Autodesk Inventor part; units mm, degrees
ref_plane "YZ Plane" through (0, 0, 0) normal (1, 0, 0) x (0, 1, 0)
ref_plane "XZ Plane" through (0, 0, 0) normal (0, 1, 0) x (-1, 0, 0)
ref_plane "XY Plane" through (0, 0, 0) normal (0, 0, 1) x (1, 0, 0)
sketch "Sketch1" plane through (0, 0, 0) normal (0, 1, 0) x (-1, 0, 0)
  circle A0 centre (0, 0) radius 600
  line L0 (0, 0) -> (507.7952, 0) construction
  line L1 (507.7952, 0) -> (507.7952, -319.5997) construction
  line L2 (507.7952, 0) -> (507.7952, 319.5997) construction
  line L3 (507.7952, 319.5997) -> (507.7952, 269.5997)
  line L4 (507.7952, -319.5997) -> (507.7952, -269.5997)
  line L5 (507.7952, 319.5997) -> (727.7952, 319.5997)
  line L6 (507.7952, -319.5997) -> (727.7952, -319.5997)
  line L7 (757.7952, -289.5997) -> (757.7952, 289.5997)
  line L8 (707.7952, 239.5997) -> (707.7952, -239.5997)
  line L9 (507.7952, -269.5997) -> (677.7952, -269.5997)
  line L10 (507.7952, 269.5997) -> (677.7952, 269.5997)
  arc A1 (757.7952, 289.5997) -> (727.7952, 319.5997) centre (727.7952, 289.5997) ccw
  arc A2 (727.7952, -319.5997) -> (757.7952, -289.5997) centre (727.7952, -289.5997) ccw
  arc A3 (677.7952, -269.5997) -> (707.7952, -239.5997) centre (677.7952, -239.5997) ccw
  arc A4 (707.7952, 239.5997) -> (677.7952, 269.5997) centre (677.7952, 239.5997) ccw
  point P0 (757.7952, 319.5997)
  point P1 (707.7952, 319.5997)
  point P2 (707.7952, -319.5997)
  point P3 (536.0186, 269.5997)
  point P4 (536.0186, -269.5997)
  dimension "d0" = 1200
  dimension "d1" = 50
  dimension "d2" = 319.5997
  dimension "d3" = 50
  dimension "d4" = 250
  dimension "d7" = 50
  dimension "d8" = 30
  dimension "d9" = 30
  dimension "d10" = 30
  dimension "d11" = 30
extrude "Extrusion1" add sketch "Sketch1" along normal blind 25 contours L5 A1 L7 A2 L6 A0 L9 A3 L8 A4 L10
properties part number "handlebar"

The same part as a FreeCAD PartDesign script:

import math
import FreeCAD as App
import Part
import Sketcher
Q = App.Units.Quantity

doc = App.newDocument("Part")
body = doc.addObject("PartDesign::Body", "Body")

# Sketch on XZ plane
sketch1 = body.newObject("Sketcher::SketchObject", "Sketch")
sketch1.AttachmentSupport = (doc.getObject("XZ_Plane"), [""])
sketch1.MapMode = "FlatFace"
sketch1.addGeometry([
    Part.LineSegment(App.Vector(-727.7952, 319.5997, 0), App.Vector(-507.7952, 319.5997, 0)),  # 0
    Part.ArcOfCircle(Part.Circle(App.Vector(0, 0, 0), App.Vector(0, 0, 1), 600), math.radians(147.814222), math.radians(153.299113)),  # 1
    Part.LineSegment(App.Vector(-536.018658, 269.5997, 0), App.Vector(-677.7952, 269.5997, 0)),  # 2
    Part.ArcOfCircle(Part.Circle(App.Vector(-677.7952, 239.5997, 0), App.Vector(0, 0, 1), 30), math.radians(90), math.radians(180)),  # 3
    Part.LineSegment(App.Vector(-707.7952, 239.5997, 0), App.Vector(-707.7952, -239.5997, 0)),  # 4
    Part.ArcOfCircle(Part.Circle(App.Vector(-677.7952, -239.5997, 0), App.Vector(0, 0, 1), 30), math.radians(180), math.radians(270)),  # 5
    Part.LineSegment(App.Vector(-677.7952, -269.5997, 0), App.Vector(-536.018658, -269.5997, 0)),  # 6
    Part.ArcOfCircle(Part.Circle(App.Vector(0, 0, 0), App.Vector(0, 0, 1), 600), math.radians(-153.299113), math.radians(-147.814222)),  # 7
    Part.LineSegment(App.Vector(-507.7952, -319.5997, 0), App.Vector(-727.7952, -319.5997, 0)),  # 8
    Part.ArcOfCircle(Part.Circle(App.Vector(-727.7952, -289.5997, 0), App.Vector(0, 0, 1), 30), math.radians(180), math.radians(270)),  # 9
    Part.LineSegment(App.Vector(-757.7952, -289.5997, 0), App.Vector(-757.7952, 289.5997, 0)),  # 10
    Part.ArcOfCircle(Part.Circle(App.Vector(-727.7952, 289.5997, 0), App.Vector(0, 0, 1), 30), math.radians(90), math.radians(180)),  # 11
], False)
sketch1.addConstraint([
    Sketcher.Constraint("Coincident", 0, 2, 1, 1),
    Sketcher.Constraint("Coincident", 1, 2, 2, 1),
    Sketcher.Constraint("Tangent", 2, 2, 3, 1),
    Sketcher.Constraint("Tangent", 3, 2, 4, 1),
    Sketcher.Constraint("Tangent", 4, 2, 5, 1),
    Sketcher.Constraint("Tangent", 5, 2, 6, 1),
    Sketcher.Constraint("Coincident", 6, 2, 7, 1),
    Sketcher.Constraint("Coincident", 7, 2, 8, 1),
    Sketcher.Constraint("Tangent", 8, 2, 9, 2),
    Sketcher.Constraint("Tangent", 9, 1, 10, 1),
    Sketcher.Constraint("Tangent", 10, 2, 11, 2),
    Sketcher.Constraint("Tangent", 11, 1, 0, 1),
    Sketcher.Constraint("Horizontal", 0),
    Sketcher.Constraint("Horizontal", 2),
    Sketcher.Constraint("Vertical", 4),
    Sketcher.Constraint("Horizontal", 6),
    Sketcher.Constraint("Horizontal", 8),
    Sketcher.Constraint("Vertical", 10),
    Sketcher.Constraint("Coincident", 1, 3, -1, 1),
    Sketcher.Constraint("Coincident", 7, 3, -1, 1),
    Sketcher.Constraint("Equal", 3, 5),
    Sketcher.Constraint("Equal", 1, 7),
    Sketcher.Constraint("Equal", 5, 9),
    Sketcher.Constraint("Equal", 9, 11),
    Sketcher.Constraint("Equal", 2, 6),
    Sketcher.Constraint("Equal", 0, 8),
    Sketcher.Constraint("Radius", 1, Q("600 mm")),
    Sketcher.Constraint("Radius", 3, Q("30 mm")),
    Sketcher.Constraint("DistanceX", 9, 3, 5, 3, Q("50 mm")),
    Sketcher.Constraint("DistanceY", 9, 3, 5, 3, Q("50 mm")),
    Sketcher.Constraint("DistanceX", 0, 1, 0, 2, Q("220 mm")),
    Sketcher.Constraint("DistanceY", -1, 1, 0, 2, Q("319.5997 mm")),
])
pad1 = body.newObject("PartDesign::Pad", "Pad")
pad1.Profile = sketch1
pad1.Length = 25
pad1.Reversed = True

doc.recompute()
